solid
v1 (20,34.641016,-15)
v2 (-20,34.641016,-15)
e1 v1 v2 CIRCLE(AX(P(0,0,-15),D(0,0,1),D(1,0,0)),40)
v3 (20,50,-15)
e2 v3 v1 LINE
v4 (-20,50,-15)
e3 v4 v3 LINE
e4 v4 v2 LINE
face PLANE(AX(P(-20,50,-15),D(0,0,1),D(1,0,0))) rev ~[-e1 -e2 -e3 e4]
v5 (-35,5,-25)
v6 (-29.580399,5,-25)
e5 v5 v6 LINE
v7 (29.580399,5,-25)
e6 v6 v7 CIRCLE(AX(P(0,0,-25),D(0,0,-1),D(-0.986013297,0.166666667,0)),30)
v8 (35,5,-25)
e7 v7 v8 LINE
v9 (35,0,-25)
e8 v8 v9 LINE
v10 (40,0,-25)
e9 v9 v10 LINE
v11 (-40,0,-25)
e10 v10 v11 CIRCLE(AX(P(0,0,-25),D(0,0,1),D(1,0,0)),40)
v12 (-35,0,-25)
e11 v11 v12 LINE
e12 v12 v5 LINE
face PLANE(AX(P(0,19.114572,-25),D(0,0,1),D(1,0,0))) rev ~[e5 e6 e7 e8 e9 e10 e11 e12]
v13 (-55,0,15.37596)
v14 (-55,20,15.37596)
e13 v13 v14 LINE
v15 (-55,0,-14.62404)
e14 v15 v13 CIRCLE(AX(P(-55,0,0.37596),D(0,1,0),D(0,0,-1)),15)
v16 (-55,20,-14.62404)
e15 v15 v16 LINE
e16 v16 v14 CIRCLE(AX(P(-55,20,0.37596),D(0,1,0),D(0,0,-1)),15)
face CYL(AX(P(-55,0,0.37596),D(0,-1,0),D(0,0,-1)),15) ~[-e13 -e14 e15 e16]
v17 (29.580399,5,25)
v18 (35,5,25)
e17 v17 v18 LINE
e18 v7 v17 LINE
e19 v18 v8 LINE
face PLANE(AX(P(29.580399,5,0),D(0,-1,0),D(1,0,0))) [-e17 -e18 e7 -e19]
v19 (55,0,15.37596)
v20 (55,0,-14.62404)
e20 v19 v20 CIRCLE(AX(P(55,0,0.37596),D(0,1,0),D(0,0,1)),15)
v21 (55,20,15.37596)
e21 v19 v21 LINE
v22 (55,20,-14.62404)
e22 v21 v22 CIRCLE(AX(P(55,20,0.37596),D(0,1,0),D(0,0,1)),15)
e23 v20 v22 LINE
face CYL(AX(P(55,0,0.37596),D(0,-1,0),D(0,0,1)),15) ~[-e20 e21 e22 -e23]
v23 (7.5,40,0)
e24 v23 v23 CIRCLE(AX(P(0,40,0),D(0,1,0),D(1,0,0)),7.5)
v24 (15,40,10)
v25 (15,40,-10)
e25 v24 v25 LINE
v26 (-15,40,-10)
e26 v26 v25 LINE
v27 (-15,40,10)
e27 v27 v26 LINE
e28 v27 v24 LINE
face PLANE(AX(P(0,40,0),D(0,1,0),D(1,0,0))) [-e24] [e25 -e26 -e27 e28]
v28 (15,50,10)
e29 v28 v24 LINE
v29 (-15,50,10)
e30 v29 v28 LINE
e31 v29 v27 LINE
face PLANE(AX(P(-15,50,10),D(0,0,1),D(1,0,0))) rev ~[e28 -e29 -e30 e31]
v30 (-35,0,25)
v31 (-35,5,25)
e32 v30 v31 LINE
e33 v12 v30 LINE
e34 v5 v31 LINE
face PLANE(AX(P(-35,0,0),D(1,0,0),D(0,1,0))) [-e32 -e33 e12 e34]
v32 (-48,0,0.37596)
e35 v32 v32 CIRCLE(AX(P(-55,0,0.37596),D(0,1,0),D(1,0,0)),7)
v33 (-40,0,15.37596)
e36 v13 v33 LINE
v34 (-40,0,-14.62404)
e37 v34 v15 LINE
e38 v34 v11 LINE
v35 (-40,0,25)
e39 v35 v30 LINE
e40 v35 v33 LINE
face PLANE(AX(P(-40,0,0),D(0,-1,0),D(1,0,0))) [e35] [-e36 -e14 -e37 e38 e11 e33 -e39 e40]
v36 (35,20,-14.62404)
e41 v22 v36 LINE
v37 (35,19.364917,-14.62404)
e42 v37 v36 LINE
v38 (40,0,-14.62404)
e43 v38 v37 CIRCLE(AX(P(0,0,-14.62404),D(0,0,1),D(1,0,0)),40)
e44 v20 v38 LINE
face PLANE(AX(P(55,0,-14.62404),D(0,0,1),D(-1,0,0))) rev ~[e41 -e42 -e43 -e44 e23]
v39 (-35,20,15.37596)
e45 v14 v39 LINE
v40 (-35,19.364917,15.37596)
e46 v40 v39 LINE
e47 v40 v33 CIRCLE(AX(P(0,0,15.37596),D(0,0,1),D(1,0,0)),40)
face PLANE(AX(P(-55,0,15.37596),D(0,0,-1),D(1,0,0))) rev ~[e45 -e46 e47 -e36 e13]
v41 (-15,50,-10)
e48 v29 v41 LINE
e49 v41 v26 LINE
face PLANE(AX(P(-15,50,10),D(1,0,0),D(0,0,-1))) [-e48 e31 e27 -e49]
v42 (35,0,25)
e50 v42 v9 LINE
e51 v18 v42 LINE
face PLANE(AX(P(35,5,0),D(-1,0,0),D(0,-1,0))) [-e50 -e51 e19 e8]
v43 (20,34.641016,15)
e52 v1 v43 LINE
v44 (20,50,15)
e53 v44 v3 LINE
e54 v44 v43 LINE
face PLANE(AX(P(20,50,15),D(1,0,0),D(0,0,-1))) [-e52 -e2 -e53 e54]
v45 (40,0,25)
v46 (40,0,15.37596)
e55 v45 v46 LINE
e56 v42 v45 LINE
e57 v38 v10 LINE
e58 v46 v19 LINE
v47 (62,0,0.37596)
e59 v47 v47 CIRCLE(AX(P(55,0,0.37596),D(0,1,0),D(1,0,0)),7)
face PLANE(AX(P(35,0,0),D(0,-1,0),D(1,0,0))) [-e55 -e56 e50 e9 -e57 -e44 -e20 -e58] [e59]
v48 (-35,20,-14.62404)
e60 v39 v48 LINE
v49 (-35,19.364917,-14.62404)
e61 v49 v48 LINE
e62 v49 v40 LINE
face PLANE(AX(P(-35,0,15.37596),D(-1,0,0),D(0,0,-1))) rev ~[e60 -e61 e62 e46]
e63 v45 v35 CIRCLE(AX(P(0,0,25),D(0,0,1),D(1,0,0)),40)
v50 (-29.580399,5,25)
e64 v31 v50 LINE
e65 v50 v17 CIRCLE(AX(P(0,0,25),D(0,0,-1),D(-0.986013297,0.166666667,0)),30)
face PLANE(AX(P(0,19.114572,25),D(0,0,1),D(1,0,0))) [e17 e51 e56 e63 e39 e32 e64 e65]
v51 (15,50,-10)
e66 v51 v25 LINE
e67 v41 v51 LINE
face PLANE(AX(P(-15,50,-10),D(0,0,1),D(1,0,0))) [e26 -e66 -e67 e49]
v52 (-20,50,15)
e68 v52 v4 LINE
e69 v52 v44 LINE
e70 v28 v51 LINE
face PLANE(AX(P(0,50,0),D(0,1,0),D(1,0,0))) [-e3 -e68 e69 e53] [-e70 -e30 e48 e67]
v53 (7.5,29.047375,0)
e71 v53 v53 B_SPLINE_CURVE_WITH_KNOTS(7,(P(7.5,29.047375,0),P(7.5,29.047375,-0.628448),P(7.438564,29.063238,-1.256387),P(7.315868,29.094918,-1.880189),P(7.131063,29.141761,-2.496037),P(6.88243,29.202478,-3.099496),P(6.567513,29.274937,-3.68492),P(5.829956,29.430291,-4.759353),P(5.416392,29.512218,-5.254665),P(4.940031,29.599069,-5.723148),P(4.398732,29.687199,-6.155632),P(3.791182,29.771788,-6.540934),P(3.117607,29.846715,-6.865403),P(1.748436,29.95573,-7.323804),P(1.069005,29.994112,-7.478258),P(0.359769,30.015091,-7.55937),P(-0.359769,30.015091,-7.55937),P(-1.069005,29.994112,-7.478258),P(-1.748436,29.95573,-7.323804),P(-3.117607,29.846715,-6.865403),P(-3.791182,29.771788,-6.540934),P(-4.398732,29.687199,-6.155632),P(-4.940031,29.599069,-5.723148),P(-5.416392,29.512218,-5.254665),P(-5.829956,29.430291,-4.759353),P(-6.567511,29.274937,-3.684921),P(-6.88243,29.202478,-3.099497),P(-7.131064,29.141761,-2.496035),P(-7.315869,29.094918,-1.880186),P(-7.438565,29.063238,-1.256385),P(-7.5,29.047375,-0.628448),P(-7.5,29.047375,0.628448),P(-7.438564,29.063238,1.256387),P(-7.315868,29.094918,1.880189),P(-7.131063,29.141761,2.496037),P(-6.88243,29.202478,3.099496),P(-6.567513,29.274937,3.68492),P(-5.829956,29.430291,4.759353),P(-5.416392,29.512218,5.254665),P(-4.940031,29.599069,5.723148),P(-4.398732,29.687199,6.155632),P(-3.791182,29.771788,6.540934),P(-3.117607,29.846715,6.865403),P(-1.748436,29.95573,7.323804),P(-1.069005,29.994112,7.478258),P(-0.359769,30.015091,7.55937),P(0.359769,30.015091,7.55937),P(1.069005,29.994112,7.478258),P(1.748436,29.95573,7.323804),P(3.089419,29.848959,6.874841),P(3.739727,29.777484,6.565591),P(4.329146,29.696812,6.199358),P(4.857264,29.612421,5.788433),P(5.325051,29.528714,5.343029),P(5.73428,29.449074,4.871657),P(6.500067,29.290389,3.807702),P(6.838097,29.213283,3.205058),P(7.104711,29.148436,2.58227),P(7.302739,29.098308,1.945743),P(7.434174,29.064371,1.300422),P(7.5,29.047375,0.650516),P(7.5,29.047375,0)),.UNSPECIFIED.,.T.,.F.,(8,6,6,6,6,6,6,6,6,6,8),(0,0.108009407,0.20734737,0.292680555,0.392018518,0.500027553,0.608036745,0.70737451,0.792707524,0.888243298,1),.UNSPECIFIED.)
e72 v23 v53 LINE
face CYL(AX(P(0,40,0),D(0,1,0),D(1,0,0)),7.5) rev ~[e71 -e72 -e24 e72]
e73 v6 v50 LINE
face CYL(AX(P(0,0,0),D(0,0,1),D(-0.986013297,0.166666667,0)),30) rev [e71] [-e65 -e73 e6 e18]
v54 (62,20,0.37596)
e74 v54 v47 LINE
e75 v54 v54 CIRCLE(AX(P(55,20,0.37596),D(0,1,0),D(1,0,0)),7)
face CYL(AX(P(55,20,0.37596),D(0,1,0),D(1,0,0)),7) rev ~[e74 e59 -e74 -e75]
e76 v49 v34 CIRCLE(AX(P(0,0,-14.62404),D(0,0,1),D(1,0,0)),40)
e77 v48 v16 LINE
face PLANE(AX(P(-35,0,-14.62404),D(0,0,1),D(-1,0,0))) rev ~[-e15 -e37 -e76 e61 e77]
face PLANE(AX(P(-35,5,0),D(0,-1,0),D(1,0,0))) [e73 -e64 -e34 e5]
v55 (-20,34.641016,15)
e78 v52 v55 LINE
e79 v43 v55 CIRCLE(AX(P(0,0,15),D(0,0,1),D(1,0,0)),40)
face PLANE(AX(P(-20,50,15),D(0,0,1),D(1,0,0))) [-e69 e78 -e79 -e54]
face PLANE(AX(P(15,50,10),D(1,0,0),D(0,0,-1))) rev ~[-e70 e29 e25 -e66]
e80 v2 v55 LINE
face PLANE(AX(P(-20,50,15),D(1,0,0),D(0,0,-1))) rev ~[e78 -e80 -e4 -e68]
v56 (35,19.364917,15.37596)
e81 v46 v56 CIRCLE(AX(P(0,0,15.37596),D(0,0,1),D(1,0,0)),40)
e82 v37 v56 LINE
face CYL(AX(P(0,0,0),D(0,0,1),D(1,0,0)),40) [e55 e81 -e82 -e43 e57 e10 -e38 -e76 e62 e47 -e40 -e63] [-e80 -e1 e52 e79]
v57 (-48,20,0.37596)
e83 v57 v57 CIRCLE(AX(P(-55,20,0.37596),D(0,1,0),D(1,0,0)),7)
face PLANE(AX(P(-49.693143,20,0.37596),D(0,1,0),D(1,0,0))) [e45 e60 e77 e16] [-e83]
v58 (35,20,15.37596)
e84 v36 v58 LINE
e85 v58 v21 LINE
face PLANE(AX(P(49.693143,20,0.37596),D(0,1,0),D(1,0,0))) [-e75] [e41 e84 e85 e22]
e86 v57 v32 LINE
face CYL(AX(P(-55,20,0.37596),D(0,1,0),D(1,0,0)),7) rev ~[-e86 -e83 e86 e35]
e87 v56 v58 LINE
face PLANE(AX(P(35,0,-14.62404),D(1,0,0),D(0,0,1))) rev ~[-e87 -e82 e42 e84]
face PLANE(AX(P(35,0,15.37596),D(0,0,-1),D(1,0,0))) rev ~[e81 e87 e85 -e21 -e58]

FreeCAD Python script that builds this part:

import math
import FreeCAD as App
import Part
import Sketcher

V = App.Vector

doc = App.newDocument("Part")
body = doc.addObject("PartDesign::Body", "Body")

sketch1 = doc.addObject("Sketcher::SketchObject", "Sketch")
body.addObject(sketch1)
sketch1.AttachmentSupport = (doc.XY_Plane, [""])
sketch1.MapMode = "FlatFace"
sketch1.addGeometry(Part.LineSegment(V(-40, 0, 0), V(-35, 0, 0)), False)
sketch1.addGeometry(Part.LineSegment(V(-35, 0, 0), V(-35, 5, 0)), False)
sketch1.addGeometry(Part.LineSegment(V(-35, 5, 0), V(-30, 5, 0)), False)
sketch1.addGeometry(Part.ArcOfCircle(Part.Circle(V(0, 0, 0), V(0, 0, 1), 30), math.radians(10), math.radians(170)), False)
sketch1.addGeometry(Part.LineSegment(V(30, 5, 0), V(35, 5, 0)), False)
sketch1.addGeometry(Part.LineSegment(V(35, 5, 0), V(35, 0, 0)), False)
sketch1.addGeometry(Part.LineSegment(V(35, 0, 0), V(40, 0, 0)), False)
sketch1.addGeometry(Part.ArcOfCircle(Part.Circle(V(0, 0, 0), V(0, 0, 1), 40), math.radians(0), math.radians(180)), False)
sketch1.addConstraint(Sketcher.Constraint("Coincident", 0, 2, 1, 1))
sketch1.addConstraint(Sketcher.Constraint("Coincident", 1, 2, 2, 1))
sketch1.addConstraint(Sketcher.Constraint("Coincident", 2, 2, 3, 2))
sketch1.addConstraint(Sketcher.Constraint("Coincident", 3, 1, 4, 1))
sketch1.addConstraint(Sketcher.Constraint("Coincident", 4, 2, 5, 1))
sketch1.addConstraint(Sketcher.Constraint("Coincident", 5, 2, 6, 1))
sketch1.addConstraint(Sketcher.Constraint("Coincident", 6, 2, 7, 1))
sketch1.addConstraint(Sketcher.Constraint("Coincident", 7, 2, 0, 1))
sketch1.addConstraint(Sketcher.Constraint("Horizontal", 0))
sketch1.addConstraint(Sketcher.Constraint("Vertical", 1))
sketch1.addConstraint(Sketcher.Constraint("Horizontal", 2))
sketch1.addConstraint(Sketcher.Constraint("Horizontal", 4))
sketch1.addConstraint(Sketcher.Constraint("Vertical", 5))
sketch1.addConstraint(Sketcher.Constraint("Horizontal", 6))
sketch1.addConstraint(Sketcher.Constraint("Coincident", 3, 3, -1, 1))
sketch1.addConstraint(Sketcher.Constraint("Coincident", 7, 3, -1, 1))
sketch1.addConstraint(Sketcher.Constraint("Symmetric", 0, 2, 5, 2, -1, 1))
sketch1.addConstraint(Sketcher.Constraint("PointOnObject", 0, 2, -1))
sketch1.addConstraint(Sketcher.Constraint("Horizontal", 2, 2, 3, 1))
sketch1.addConstraint(Sketcher.Constraint("Equal", 6, 1))
sketch1.addConstraint(Sketcher.Constraint("Radius", 3, 30.0))
sketch1.addConstraint(Sketcher.Constraint("Radius", 7, 40.0))
sketch1.addConstraint(Sketcher.Constraint("DistanceX", 0, 1, 0, 2, 5.0))
pad1 = doc.addObject("PartDesign::Pad", "Pad")
body.addObject(pad1)
pad1.Profile = sketch1
pad1.Length = 50
pad1.Midplane = True

sketch2 = doc.addObject("Sketcher::SketchObject", "Sketch001")
body.addObject(sketch2)
sketch2.AttachmentSupport = (doc.XZ_Plane, [""])
sketch2.MapMode = "FlatFace"
sketch2.addGeometry(Part.LineSegment(V(35, -15, 0), V(35, 15, 0)), False)
sketch2.addGeometry(Part.LineSegment(V(35, 15, 0), V(55, 15, 0)), False)
sketch2.addGeometry(Part.ArcOfCircle(Part.Circle(V(55, 0, 0), V(0, 0, 1), 15), math.radians(-90), math.radians(90)), False)
sketch2.addGeometry(Part.LineSegment(V(55, -15, 0), V(35, -15, 0)), False)
sketch2.addGeometry(Part.LineSegment(V(-55, 15, 0), V(-35, 15, 0)), False)
sketch2.addGeometry(Part.LineSegment(V(-35, 15, 0), V(-35, -15, 0)), False)
sketch2.addGeometry(Part.LineSegment(V(-35, -15, 0), V(-55, -15, 0)), False)
sketch2.addGeometry(Part.ArcOfCircle(Part.Circle(V(-55, 0, 0), V(0, 0, 1), 15), math.radians(90), math.radians(270)), False)
sketch2.addConstraint(Sketcher.Constraint("Coincident", 0, 2, 1, 1))
sketch2.addConstraint(Sketcher.Constraint("Tangent", 1, 2, 2, 2))
sketch2.addConstraint(Sketcher.Constraint("Tangent", 2, 1, 3, 1))
sketch2.addConstraint(Sketcher.Constraint("Coincident", 3, 2, 0, 1))
sketch2.addConstraint(Sketcher.Constraint("Coincident", 4, 2, 5, 1))
sketch2.addConstraint(Sketcher.Constraint("Coincident", 5, 2, 6, 1))
sketch2.addConstraint(Sketcher.Constraint("Tangent", 6, 2, 7, 2))
sketch2.addConstraint(Sketcher.Constraint("Tangent", 7, 1, 4, 1))
sketch2.addConstraint(Sketcher.Constraint("Vertical", 0))
sketch2.addConstraint(Sketcher.Constraint("Horizontal", 1))
sketch2.addConstraint(Sketcher.Constraint("Horizontal", 3))
sketch2.addConstraint(Sketcher.Constraint("Horizontal", 4))
sketch2.addConstraint(Sketcher.Constraint("Vertical", 5))
sketch2.addConstraint(Sketcher.Constraint("Horizontal", 6))
sketch2.addConstraint(Sketcher.Constraint("Equal", 2, 7))
sketch2.addConstraint(Sketcher.Constraint("Symmetric", 2, 3, 7, 3, -2))
sketch2.addConstraint(Sketcher.Constraint("Equal", 3, 4))
sketch2.addConstraint(Sketcher.Constraint("Radius", 2, 15.0))
sketch2.addConstraint(Sketcher.Constraint("DistanceX", 1, 1, 1, 2, 20.0))
sketch2.addConstraint(Sketcher.Constraint("DistanceX", -1, 1, 2, 3, 55.0))
sketch2.addConstraint(Sketcher.Constraint("DistanceY", -1, 1, 2, 3, 0.37596))
pad2 = doc.addObject("PartDesign::Pad", "Pad001")
body.addObject(pad2)
pad2.Profile = sketch2
pad2.Length = 20
pad2.Reversed = True

sketch3 = doc.addObject("Sketcher::SketchObject", "Sketch002")
body.addObject(sketch3)
sketch3.AttachmentSupport = (doc.XZ_Plane, [""])
sketch3.MapMode = "FlatFace"
sketch3.AttachmentOffset = App.Placement(V(0, 0, -20), App.Rotation())
sketch3.addGeometry(Part.Circle(V(55, 0, 0), V(0, 0, 1), 7), False)
sketch3.addConstraint(Sketcher.Constraint("Diameter", 0, 14.0))
sketch3.addConstraint(Sketcher.Constraint("DistanceX", -1, 1, 0, 3, 55.0))
sketch3.addConstraint(Sketcher.Constraint("DistanceY", -1, 1, 0, 3, 0.37596))
pocket1 = doc.addObject("PartDesign::Pocket", "Pocket")
body.addObject(pocket1)
pocket1.Profile = sketch3
pocket1.Length = 20
pocket1.Reversed = True

sketch4 = doc.addObject("Sketcher::SketchObject", "Sketch003")
body.addObject(sketch4)
sketch4.AttachmentSupport = (doc.XZ_Plane, [""])
sketch4.MapMode = "FlatFace"
sketch4.AttachmentOffset = App.Placement(V(0, 0, -20), App.Rotation())
sketch4.addGeometry(Part.Circle(V(-55, 0, 0), V(0, 0, 1), 7), False)
sketch4.addConstraint(Sketcher.Constraint("Diameter", 0, 14.0))
sketch4.addConstraint(Sketcher.Constraint("DistanceX", 0, 3, -1, 1, 55.0))
sketch4.addConstraint(Sketcher.Constraint("DistanceY", -1, 1, 0, 3, 0.37596))
pocket2 = doc.addObject("PartDesign::Pocket", "Pocket001")
body.addObject(pocket2)
pocket2.Profile = sketch4
pocket2.Length = 20
pocket2.Reversed = True

sketch5 = doc.addObject("Sketcher::SketchObject", "Sketch004")
body.addObject(sketch5)
sketch5.AttachmentSupport = (doc.XZ_Plane, [""])
sketch5.MapMode = "FlatFace"
sketch5.AttachmentOffset = App.Placement(V(0, 0, -50), App.Rotation())
sketch5.addGeometry(Part.LineSegment(V(-20, -15, 0), V(-20, 15, 0)), False)
sketch5.addGeometry(Part.LineSegment(V(-20, 15, 0), V(20, 15, 0)), False)
sketch5.addGeometry(Part.LineSegment(V(20, 15, 0), V(20, -15, 0)), False)
sketch5.addGeometry(Part.LineSegment(V(20, -15, 0), V(-20, -15, 0)), False)
sketch5.addConstraint(Sketcher.Constraint("Coincident", 0, 2, 1, 1))
sketch5.addConstraint(Sketcher.Constraint("Coincident", 1, 2, 2, 1))
sketch5.addConstraint(Sketcher.Constraint("Coincident", 2, 2, 3, 1))
sketch5.addConstraint(Sketcher.Constraint("Coincident", 3, 2, 0, 1))
sketch5.addConstraint(Sketcher.Constraint("Vertical", 0))
sketch5.addConstraint(Sketcher.Constraint("Horizontal", 1))
sketch5.addConstraint(Sketcher.Constraint("Vertical", 2))
sketch5.addConstraint(Sketcher.Constraint("Horizontal", 3))
sketch5.addConstraint(Sketcher.Constraint("Symmetric", 0, 2, 2, 2, -1, 1))
sketch5.addConstraint(Sketcher.Constraint("DistanceX", 1, 1, 1, 2, 40.0))
sketch5.addConstraint(Sketcher.Constraint("DistanceY", 0, 1, 0, 2, 30.0))
pad3 = doc.addObject("PartDesign::Pad", "Pad002")
body.addObject(pad3)
pad3.Profile = sketch5
pad3.Type = "UpToFirst"

sketch6 = doc.addObject("Sketcher::SketchObject", "Sketch005")
body.addObject(sketch6)
sketch6.AttachmentSupport = (doc.XZ_Plane, [""])
sketch6.MapMode = "FlatFace"
sketch6.AttachmentOffset = App.Placement(V(0, 0, -50), App.Rotation())
sketch6.addGeometry(Part.LineSegment(V(-15, -10, 0), V(-15, 10, 0)), False)
sketch6.addGeometry(Part.LineSegment(V(-15, 10, 0), V(15, 10, 0)), False)
sketch6.addGeometry(Part.LineSegment(V(15, 10, 0), V(15, -10, 0)), False)
sketch6.addGeometry(Part.LineSegment(V(15, -10, 0), V(-15, -10, 0)), False)
sketch6.addConstraint(Sketcher.Constraint("Coincident", 0, 2, 1, 1))
sketch6.addConstraint(Sketcher.Constraint("Coincident", 1, 2, 2, 1))
sketch6.addConstraint(Sketcher.Constraint("Coincident", 2, 2, 3, 1))
sketch6.addConstraint(Sketcher.Constraint("Coincident", 3, 2, 0, 1))
sketch6.addConstraint(Sketcher.Constraint("Vertical", 0))
sketch6.addConstraint(Sketcher.Constraint("Horizontal", 1))
sketch6.addConstraint(Sketcher.Constraint("Vertical", 2))
sketch6.addConstraint(Sketcher.Constraint("Horizontal", 3))
sketch6.addConstraint(Sketcher.Constraint("Symmetric", 0, 2, 2, 2, -1, 1))
sketch6.addConstraint(Sketcher.Constraint("DistanceX", 1, 1, 1, 2, 30.0))
sketch6.addConstraint(Sketcher.Constraint("DistanceY", 0, 1, 0, 2, 20.0))
pocket3 = doc.addObject("PartDesign::Pocket", "Pocket002")
body.addObject(pocket3)
pocket3.Profile = sketch6
pocket3.Length = 10
pocket3.Reversed = True

sketch7 = doc.addObject("Sketcher::SketchObject", "Sketch006")
body.addObject(sketch7)
sketch7.AttachmentSupport = (doc.XZ_Plane, [""])
sketch7.MapMode = "FlatFace"
sketch7.AttachmentOffset = App.Placement(V(0, 0, -40), App.Rotation())
sketch7.addGeometry(Part.Circle(V(0, 0, 0), V(0, 0, 1), 8), False)
sketch7.addConstraint(Sketcher.Constraint("Coincident", 0, 3, -1, 1))
sketch7.addConstraint(Sketcher.Constraint("Diameter", 0, 15.0))
pocket4 = doc.addObject("PartDesign::Pocket", "Pocket003")
body.addObject(pocket4)
pocket4.Profile = sketch7
pocket4.Type = "UpToFirst"
pocket4.Reversed = True

doc.recompute()
